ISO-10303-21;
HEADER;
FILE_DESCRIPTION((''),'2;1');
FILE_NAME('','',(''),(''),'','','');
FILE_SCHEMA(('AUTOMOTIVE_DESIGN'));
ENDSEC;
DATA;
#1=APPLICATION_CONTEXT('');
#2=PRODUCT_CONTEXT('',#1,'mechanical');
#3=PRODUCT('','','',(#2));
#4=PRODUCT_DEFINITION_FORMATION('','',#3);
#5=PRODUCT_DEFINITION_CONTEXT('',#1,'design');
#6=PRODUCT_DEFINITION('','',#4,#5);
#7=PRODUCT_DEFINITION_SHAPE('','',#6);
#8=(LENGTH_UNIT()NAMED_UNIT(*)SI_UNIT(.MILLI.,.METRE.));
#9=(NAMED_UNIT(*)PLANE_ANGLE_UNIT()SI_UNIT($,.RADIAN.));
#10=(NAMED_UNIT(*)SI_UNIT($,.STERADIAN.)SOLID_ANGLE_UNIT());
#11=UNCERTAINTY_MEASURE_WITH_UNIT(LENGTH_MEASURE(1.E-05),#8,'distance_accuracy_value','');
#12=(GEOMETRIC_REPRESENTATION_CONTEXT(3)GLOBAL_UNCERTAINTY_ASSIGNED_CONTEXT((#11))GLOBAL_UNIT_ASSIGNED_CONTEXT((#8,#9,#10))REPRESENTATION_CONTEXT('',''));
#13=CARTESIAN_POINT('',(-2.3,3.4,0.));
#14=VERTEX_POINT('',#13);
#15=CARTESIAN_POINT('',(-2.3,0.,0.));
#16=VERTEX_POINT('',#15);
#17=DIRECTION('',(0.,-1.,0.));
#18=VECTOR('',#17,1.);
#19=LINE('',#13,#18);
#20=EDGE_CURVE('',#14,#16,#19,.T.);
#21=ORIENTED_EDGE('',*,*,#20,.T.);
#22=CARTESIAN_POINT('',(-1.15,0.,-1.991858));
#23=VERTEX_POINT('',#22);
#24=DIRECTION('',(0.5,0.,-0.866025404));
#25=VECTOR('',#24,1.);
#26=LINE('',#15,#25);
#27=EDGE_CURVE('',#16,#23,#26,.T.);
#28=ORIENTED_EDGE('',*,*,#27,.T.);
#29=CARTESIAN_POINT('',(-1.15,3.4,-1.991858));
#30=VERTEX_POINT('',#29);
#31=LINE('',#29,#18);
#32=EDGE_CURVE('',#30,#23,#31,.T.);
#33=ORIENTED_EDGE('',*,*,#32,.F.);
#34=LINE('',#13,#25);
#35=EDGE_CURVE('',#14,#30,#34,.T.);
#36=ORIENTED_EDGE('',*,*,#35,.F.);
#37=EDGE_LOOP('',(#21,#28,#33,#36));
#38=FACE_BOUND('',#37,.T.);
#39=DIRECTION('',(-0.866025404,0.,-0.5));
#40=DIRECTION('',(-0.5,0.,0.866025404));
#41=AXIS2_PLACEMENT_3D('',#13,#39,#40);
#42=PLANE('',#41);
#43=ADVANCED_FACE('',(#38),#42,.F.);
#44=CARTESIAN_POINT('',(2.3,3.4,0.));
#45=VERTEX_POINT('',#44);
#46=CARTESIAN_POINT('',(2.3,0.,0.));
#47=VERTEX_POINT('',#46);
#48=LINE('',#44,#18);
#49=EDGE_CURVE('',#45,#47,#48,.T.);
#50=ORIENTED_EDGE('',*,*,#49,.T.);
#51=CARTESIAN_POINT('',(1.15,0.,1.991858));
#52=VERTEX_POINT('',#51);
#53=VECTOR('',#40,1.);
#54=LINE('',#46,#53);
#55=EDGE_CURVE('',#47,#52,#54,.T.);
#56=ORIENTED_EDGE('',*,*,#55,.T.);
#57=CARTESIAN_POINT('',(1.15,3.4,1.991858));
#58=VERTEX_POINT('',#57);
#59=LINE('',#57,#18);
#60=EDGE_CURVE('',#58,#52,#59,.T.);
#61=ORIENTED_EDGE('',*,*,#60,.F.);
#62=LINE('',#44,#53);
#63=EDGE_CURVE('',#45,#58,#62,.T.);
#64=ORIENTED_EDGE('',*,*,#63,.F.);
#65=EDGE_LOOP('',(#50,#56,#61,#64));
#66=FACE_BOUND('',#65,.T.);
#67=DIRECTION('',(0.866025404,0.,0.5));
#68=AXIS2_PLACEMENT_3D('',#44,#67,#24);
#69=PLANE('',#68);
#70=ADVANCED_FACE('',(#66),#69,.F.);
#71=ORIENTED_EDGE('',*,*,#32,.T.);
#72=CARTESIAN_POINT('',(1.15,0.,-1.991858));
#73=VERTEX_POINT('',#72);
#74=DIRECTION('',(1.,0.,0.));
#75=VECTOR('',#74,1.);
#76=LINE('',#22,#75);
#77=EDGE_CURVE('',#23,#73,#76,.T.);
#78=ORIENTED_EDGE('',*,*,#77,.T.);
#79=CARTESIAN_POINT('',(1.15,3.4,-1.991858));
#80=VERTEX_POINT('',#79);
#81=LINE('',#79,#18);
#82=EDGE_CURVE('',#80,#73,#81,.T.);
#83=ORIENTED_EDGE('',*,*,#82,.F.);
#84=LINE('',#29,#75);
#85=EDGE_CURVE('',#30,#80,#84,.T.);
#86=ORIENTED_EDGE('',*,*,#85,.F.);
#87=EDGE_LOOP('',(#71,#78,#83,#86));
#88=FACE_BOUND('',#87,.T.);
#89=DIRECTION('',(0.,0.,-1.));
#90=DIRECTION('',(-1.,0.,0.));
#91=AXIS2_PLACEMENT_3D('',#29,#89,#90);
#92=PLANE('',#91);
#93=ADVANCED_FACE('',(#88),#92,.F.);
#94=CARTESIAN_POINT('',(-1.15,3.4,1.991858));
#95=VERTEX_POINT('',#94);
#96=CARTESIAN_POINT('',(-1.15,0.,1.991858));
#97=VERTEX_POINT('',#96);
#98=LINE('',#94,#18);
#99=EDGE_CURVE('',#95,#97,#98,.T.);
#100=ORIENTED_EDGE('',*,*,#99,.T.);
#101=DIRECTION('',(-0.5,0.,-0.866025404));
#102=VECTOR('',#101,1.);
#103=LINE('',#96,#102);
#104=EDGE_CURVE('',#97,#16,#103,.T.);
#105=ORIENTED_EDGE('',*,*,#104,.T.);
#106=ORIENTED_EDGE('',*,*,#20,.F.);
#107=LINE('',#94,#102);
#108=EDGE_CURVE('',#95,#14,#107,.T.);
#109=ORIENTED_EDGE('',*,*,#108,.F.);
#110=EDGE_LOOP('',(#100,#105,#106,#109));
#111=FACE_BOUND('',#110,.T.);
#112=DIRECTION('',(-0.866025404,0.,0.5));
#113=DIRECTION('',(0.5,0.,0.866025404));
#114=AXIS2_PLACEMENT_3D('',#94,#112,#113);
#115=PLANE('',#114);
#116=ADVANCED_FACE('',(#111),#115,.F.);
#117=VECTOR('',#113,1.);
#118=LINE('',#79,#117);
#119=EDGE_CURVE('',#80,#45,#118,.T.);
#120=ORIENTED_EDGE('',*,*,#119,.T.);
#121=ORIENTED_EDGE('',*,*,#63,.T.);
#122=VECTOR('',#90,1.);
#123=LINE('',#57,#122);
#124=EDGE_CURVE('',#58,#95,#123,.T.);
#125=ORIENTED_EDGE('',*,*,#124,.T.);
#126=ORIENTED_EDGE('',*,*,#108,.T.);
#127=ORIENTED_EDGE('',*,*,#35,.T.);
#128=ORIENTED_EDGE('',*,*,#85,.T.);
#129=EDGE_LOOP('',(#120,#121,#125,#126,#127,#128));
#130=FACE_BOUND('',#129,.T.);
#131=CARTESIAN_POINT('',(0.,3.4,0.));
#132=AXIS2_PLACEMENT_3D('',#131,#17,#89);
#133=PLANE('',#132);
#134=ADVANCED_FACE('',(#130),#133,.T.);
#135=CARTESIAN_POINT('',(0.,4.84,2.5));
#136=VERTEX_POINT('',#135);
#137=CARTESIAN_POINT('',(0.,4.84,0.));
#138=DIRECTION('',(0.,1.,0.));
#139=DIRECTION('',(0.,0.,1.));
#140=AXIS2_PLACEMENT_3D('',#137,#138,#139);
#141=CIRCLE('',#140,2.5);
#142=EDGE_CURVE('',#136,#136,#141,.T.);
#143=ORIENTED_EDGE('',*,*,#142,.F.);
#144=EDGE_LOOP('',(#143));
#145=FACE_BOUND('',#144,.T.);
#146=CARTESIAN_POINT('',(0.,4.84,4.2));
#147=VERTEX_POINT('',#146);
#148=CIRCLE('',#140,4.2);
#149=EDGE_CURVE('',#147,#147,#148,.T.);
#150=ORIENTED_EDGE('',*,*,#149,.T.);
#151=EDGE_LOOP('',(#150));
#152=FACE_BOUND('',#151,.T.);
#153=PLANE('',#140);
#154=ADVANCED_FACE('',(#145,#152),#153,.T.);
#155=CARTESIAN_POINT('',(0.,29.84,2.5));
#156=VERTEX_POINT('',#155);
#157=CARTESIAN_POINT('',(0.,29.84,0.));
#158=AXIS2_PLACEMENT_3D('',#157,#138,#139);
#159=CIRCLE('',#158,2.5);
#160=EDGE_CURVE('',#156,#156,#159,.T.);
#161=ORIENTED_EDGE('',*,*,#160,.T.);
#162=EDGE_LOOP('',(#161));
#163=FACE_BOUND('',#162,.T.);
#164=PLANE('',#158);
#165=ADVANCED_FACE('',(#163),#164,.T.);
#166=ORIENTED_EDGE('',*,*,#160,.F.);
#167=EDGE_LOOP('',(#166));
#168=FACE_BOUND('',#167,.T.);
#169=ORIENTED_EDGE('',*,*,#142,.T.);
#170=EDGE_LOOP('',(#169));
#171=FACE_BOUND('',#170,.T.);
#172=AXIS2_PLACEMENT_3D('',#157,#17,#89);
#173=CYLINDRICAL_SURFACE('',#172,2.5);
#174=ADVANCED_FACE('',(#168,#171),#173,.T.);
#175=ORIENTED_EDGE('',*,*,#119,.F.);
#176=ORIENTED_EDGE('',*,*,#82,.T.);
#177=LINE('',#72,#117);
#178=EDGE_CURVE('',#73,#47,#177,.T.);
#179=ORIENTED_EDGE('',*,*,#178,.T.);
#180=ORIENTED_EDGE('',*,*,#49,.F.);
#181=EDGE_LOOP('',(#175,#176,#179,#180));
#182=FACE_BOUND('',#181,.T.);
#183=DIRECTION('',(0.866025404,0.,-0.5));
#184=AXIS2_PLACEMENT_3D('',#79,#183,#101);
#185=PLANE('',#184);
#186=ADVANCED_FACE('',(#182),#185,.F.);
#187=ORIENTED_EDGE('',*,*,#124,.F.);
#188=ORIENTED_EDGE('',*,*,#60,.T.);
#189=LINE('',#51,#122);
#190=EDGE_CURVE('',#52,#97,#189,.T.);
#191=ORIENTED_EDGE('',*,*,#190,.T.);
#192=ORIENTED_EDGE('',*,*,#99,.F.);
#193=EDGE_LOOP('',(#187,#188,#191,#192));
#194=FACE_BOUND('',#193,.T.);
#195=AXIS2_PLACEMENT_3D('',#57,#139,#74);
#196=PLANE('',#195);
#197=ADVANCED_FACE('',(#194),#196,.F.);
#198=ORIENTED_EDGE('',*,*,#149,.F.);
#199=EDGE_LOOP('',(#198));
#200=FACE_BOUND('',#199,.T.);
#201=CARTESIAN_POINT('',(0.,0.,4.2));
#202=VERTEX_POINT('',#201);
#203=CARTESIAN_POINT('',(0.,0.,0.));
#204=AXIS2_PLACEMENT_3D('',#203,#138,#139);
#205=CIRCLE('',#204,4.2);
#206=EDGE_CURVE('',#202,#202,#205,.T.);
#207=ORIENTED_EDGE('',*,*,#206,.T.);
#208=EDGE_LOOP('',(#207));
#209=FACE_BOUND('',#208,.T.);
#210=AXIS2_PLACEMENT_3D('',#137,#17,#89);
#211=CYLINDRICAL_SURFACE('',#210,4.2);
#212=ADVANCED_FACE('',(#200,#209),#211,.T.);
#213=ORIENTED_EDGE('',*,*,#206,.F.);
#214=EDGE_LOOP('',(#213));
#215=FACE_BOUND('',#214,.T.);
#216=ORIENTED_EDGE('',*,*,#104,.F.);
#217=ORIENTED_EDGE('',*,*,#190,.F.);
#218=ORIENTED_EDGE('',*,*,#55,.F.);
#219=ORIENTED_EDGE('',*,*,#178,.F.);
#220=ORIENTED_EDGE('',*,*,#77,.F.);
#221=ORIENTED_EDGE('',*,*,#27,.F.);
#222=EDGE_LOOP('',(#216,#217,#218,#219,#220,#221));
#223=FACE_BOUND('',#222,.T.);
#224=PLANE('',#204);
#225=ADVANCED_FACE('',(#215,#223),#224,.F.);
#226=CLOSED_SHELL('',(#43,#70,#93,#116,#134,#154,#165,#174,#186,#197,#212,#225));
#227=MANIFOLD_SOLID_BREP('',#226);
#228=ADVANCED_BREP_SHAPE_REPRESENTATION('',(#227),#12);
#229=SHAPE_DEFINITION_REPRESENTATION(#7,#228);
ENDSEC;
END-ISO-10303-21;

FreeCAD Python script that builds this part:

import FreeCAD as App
import Part
import Sketcher

V = App.Vector
Q = App.Units.Quantity

doc = App.newDocument("Part")
body = doc.addObject("PartDesign::Body", "Body")

sketch1 = body.newObject("Sketcher::SketchObject", "Sketch")
sketch1.AttachmentSupport = (doc.getObject("XZ_Plane"), [""])
sketch1.MapMode = "FlatFace"
sketch1.addGeometry(Part.Circle(V(0, 0, 0), V(0, 0, 1), 4.2), False)
sketch1.addConstraint([
    Sketcher.Constraint("Coincident", 0, 3, -1, 1),
    Sketcher.Constraint("Diameter", 0, 8.4),
])
pad1 = body.newObject("PartDesign::Pad", "Pad")
pad1.Profile = sketch1
pad1.Length = 4.84
pad1.Reversed = True

sketch2 = body.newObject("Sketcher::SketchObject", "Sketch001")
sketch2.AttachmentSupport = (doc.getObject("XZ_Plane"), [""])
sketch2.MapMode = "FlatFace"
sketch2.AttachmentOffset = App.Placement(V(0, 0, -4.84), App.Rotation())
sketch2.addGeometry(Part.Circle(V(0, 0, 0), V(0, 0, 1), 2.5), False)
sketch2.addConstraint([
    Sketcher.Constraint("Coincident", 0, 3, -1, 1),
    Sketcher.Constraint("Diameter", 0, 5.0),
])
pad2 = body.newObject("PartDesign::Pad", "Pad001")
pad2.Profile = sketch2
pad2.Length = 25
pad2.Reversed = True

sketch3 = body.newObject("Sketcher::SketchObject", "Sketch002")
sketch3.AttachmentSupport = (doc.getObject("XZ_Plane"), [""])
sketch3.MapMode = "FlatFace"
sketch3.addGeometry([
    Part.LineSegment(V(2.3, 0, 0), V(1.1, 2, 0)),
    Part.LineSegment(V(1.1, 2, 0), V(-1.1, 2, 0)),
    Part.LineSegment(V(-1.1, 2, 0), V(-2.3, 0, 0)),
    Part.LineSegment(V(-2.3, 0, 0), V(-1.1, -2, 0)),
    Part.LineSegment(V(-1.1, -2, 0), V(1.1, -2, 0)),
    Part.LineSegment(V(1.1, -2, 0), V(2.3, 0, 0)),
], False)
sketch3.addConstraint([
    Sketcher.Constraint("Coincident", 0, 2, 1, 1),
    Sketcher.Constraint("Coincident", 1, 2, 2, 1),
    Sketcher.Constraint("Coincident", 2, 2, 3, 1),
    Sketcher.Constraint("Coincident", 3, 2, 4, 1),
    Sketcher.Constraint("Coincident", 4, 2, 5, 1),
    Sketcher.Constraint("Coincident", 5, 2, 0, 1),
    Sketcher.Constraint("Horizontal", 1),
    Sketcher.Constraint("Horizontal", 4),
    Sketcher.Constraint("Symmetric", 0, 2, 3, 2, -1, 1),
    Sketcher.Constraint("Symmetric", 2, 2, 5, 2, -1, 1),
    Sketcher.Constraint("PointOnObject", 2, 2, -1),
    Sketcher.Constraint("Parallel", 2, 5),
    Sketcher.Constraint("Vertical", 1, 2, 3, 2),
    Sketcher.Constraint("Angle", 0, Q("120 deg")),
    Sketcher.Constraint("DistanceX", 1, 2, 1, 1, 2.3),
    Sketcher.Constraint("Distance", 0, 2.3),
])
pocket1 = body.newObject("PartDesign::Pocket", "Pocket")
pocket1.Profile = sketch3
pocket1.Length = 3.4

doc.recompute()
